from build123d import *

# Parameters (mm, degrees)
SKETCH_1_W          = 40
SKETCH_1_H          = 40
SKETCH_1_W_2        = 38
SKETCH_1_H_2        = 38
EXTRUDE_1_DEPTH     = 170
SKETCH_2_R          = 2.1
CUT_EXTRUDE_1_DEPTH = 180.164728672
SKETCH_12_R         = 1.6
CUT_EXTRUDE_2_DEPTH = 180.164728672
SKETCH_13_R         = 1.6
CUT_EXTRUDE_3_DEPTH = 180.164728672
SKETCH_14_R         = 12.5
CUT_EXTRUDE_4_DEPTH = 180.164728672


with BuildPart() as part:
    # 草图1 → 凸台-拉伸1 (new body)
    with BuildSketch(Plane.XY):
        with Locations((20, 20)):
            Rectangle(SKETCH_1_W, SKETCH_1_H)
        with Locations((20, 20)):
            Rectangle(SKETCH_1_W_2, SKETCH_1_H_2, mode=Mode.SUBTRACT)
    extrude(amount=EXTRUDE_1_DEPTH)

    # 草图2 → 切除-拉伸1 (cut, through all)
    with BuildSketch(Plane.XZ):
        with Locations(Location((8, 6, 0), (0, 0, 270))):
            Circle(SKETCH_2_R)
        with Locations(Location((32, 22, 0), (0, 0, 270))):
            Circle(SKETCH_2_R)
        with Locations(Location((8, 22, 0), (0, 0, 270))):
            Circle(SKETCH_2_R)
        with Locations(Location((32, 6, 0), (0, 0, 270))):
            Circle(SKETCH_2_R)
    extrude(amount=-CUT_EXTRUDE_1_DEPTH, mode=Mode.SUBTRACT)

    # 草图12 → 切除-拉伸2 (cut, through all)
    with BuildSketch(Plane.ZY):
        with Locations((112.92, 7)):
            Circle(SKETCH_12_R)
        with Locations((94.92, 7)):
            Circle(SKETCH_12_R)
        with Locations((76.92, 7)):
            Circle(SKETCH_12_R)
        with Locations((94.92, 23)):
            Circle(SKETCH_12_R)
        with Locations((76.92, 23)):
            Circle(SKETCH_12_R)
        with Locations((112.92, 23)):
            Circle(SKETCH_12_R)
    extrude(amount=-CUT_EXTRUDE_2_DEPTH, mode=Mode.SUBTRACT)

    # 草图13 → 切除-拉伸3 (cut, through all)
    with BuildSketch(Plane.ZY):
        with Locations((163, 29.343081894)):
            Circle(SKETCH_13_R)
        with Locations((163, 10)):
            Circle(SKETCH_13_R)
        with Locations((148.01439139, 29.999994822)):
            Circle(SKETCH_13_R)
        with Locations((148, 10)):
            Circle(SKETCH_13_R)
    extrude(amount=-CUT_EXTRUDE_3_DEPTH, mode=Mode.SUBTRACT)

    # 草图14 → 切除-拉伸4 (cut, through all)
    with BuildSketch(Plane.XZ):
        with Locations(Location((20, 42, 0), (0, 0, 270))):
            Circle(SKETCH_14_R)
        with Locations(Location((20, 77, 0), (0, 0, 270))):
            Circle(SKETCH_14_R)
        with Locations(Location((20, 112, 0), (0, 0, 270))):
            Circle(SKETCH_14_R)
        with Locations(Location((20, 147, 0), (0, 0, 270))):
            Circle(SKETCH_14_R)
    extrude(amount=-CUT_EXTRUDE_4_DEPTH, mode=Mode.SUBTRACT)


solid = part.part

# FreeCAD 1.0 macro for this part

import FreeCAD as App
import Part
import Sketcher
from FreeCAD import Vector


def add_polygon(sketch, points):
    """Adds a closed chain of lines whose ends are joined by coincident constraints."""
    first, n = sketch.GeometryCount, len(points)
    for a, b in zip(points, points[1:] + points[:1]):
        sketch.addGeometry(Part.LineSegment(App.Vector(*a, 0), App.Vector(*b, 0)), False)
    for i in range(n):
        sketch.addConstraint(Sketcher.Constraint("Coincident", first + i, 2, first + (i + 1) % n, 1))

doc = App.newDocument("Part")
body = doc.addObject("PartDesign::Body", "Body")

# Sketch on XY plane
sketch1 = body.newObject("Sketcher::SketchObject", "Sketch")
sketch1.AttachmentSupport = (doc.getObject("XY_Plane"), [""])
sketch1.MapMode = "FlatFace"
add_polygon(sketch1, [(0, 40), (0, 0), (40, 0), (40, 40)])  # lines 0-3
add_polygon(sketch1, [(39, 1), (1, 1), (1, 39), (39, 39)])  # lines 4-7
sketch1.addConstraint(Sketcher.Constraint("Vertical", 0))
sketch1.addConstraint(Sketcher.Constraint("Horizontal", 1))
sketch1.addConstraint(Sketcher.Constraint("Vertical", 2))
sketch1.addConstraint(Sketcher.Constraint("Horizontal", 3))
sketch1.addConstraint(Sketcher.Constraint("Horizontal", 4))
sketch1.addConstraint(Sketcher.Constraint("Vertical", 5))
sketch1.addConstraint(Sketcher.Constraint("Horizontal", 6))
sketch1.addConstraint(Sketcher.Constraint("Vertical", 7))
sketch1.addConstraint(Sketcher.Constraint("Coincident", 0, 2, -1, 1))
sketch1.addConstraint(Sketcher.Constraint("Equal", 3, 0))
sketch1.addConstraint(Sketcher.Constraint("Equal", 6, 5))
sketch1.addConstraint(Sketcher.Constraint("DistanceX", 1, 1, 1, 2, 40.0))
sketch1.addConstraint(Sketcher.Constraint("DistanceX", 4, 2, 4, 1, 38.0))
sketch1.addConstraint(Sketcher.Constraint("DistanceX", -1, 1, 4, 2, 1.0))
sketch1.addConstraint(Sketcher.Constraint("DistanceY", -1, 1, 4, 2, 1.0))
pad1 = body.newObject("PartDesign::Pad", "Pad")
pad1.Profile = sketch1
pad1.Length = 170

# Sketch on XZ plane
sketch2 = body.newObject("Sketcher::SketchObject", "Sketch001")
sketch2.AttachmentSupport = (doc.getObject("XZ_Plane"), [""])
sketch2.MapMode = "FlatFace"
sketch2.addGeometry(Part.Circle(Vector(8, 6, 0), Vector(0, 0, 1), 2.1), False)
sketch2.addGeometry(Part.Circle(Vector(32, 22, 0), Vector(0, 0, 1), 2.1), False)
sketch2.addGeometry(Part.Circle(Vector(8, 22, 0), Vector(0, 0, 1), 2.1), False)
sketch2.addGeometry(Part.Circle(Vector(32, 6, 0), Vector(0, 0, 1), 2.1), False)
sketch2.addConstraint(Sketcher.Constraint("Equal", 0, 1))
sketch2.addConstraint(Sketcher.Constraint("Equal", 1, 2))
sketch2.addConstraint(Sketcher.Constraint("Equal", 2, 3))
sketch2.addConstraint(Sketcher.Constraint("Horizontal", 1, 3, 2, 3))
sketch2.addConstraint(Sketcher.Constraint("Horizontal", 0, 3, 3, 3))
sketch2.addConstraint(Sketcher.Constraint("Vertical", 0, 3, 2, 3))
sketch2.addConstraint(Sketcher.Constraint("Vertical", 1, 3, 3, 3))
sketch2.addConstraint(Sketcher.Constraint("Diameter", 0, 4.2))
sketch2.addConstraint(Sketcher.Constraint("DistanceX", -1, 1, 0, 3, 8.0))
sketch2.addConstraint(Sketcher.Constraint("DistanceY", -1, 1, 0, 3, 6.0))
sketch2.addConstraint(Sketcher.Constraint("DistanceX", -1, 1, 1, 3, 32.0))
sketch2.addConstraint(Sketcher.Constraint("DistanceY", -1, 1, 1, 3, 22.0))
pocket1 = body.newObject("PartDesign::Pocket", "Pocket")
pocket1.Profile = sketch2
pocket1.Type = "ThroughAll"

# Sketch on YZ plane
sketch3 = body.newObject("Sketcher::SketchObject", "Sketch002")
sketch3.AttachmentSupport = (doc.getObject("YZ_Plane"), [""])
sketch3.MapMode = "FlatFace"
sketch3.addGeometry(Part.Circle(Vector(7, 112.9, 0), Vector(0, 0, 1), 1.6), False)
sketch3.addGeometry(Part.Circle(Vector(7, 94.9, 0), Vector(0, 0, 1), 1.6), False)
sketch3.addGeometry(Part.Circle(Vector(7, 76.9, 0), Vector(0, 0, 1), 1.6), False)
sketch3.addGeometry(Part.Circle(Vector(23, 94.9, 0), Vector(0, 0, 1), 1.6), False)
sketch3.addGeometry(Part.Circle(Vector(23, 76.9, 0), Vector(0, 0, 1), 1.6), False)
sketch3.addGeometry(Part.Circle(Vector(23, 112.9, 0), Vector(0, 0, 1), 1.6), False)
sketch3.addConstraint(Sketcher.Constraint("Equal", 0, 1))
sketch3.addConstraint(Sketcher.Constraint("Equal", 1, 2))
sketch3.addConstraint(Sketcher.Constraint("Equal", 2, 3))
sketch3.addConstraint(Sketcher.Constraint("Equal", 3, 4))
sketch3.addConstraint(Sketcher.Constraint("Equal", 4, 5))
sketch3.addConstraint(Sketcher.Constraint("Horizontal", 1, 3, 3, 3))
sketch3.addConstraint(Sketcher.Constraint("Horizontal", 2, 3, 4, 3))
sketch3.addConstraint(Sketcher.Constraint("Horizontal", 0, 3, 5, 3))
sketch3.addConstraint(Sketcher.Constraint("Vertical", 0, 3, 1, 3))
sketch3.addConstraint(Sketcher.Constraint("Vertical", 1, 3, 2, 3))
sketch3.addConstraint(Sketcher.Constraint("Vertical", 3, 3, 4, 3))
sketch3.addConstraint(Sketcher.Constraint("Vertical", 4, 3, 5, 3))
sketch3.addConstraint(Sketcher.Constraint("Diameter", 0, 3.2))
sketch3.addConstraint(Sketcher.Constraint("DistanceX", -1, 1, 0, 3, 7.0))
sketch3.addConstraint(Sketcher.Constraint("DistanceX", -1, 1, 3, 3, 23.0))
sketch3.addConstraint(Sketcher.Constraint("DistanceY", 1, 3, 0, 3, 18.0))
sketch3.addConstraint(Sketcher.Constraint("DistanceY", 2, 3, 1, 3, 18.0))
sketch3.addConstraint(Sketcher.Constraint("DistanceY", -1, 1, 0, 3, 112.92))
pocket2 = body.newObject("PartDesign::Pocket", "Pocket001")
pocket2.Profile = sketch3
pocket2.Type = "ThroughAll"
pocket2.Reversed = True

# Sketch on YZ plane
sketch4 = body.newObject("Sketcher::SketchObject", "Sketch003")
sketch4.AttachmentSupport = (doc.getObject("YZ_Plane"), [""])
sketch4.MapMode = "FlatFace"
sketch4.addGeometry(Part.Circle(Vector(29.3, 163, 0), Vector(0, 0, 1), 1.6), False)
sketch4.addGeometry(Part.Circle(Vector(10, 163, 0), Vector(0, 0, 1), 1.6), False)
sketch4.addGeometry(Part.Circle(Vector(30, 148, 0), Vector(0, 0, 1), 1.6), False)
sketch4.addGeometry(Part.Circle(Vector(10, 148, 0), Vector(0, 0, 1), 1.6), False)
sketch4.addConstraint(Sketcher.Constraint("Equal", 0, 1))
sketch4.addConstraint(Sketcher.Constraint("Equal", 1, 2))
sketch4.addConstraint(Sketcher.Constraint("Equal", 2, 3))
sketch4.addConstraint(Sketcher.Constraint("Horizontal", 0, 3, 1, 3))
sketch4.addConstraint(Sketcher.Constraint("Vertical", 1, 3, 3, 3))
sketch4.addConstraint(Sketcher.Constraint("Diameter", 0, 3.2))
sketch4.addConstraint(Sketcher.Constraint("DistanceY", -1, 1, 0, 3, 163.0))
sketch4.addConstraint(Sketcher.Constraint("DistanceX", -1, 1, 1, 3, 10.0))
sketch4.addConstraint(Sketcher.Constraint("DistanceY", -1, 1, 3, 3, 148.0))
sketch4.addConstraint(Sketcher.Constraint("DistanceX", -1, 1, 0, 3, 29.343082))
sketch4.addConstraint(Sketcher.Constraint("DistanceY", -1, 1, 2, 3, 148.014391))
sketch4.addConstraint(Sketcher.Constraint("DistanceX", -1, 1, 2, 3, 29.999995))
pocket3 = body.newObject("PartDesign::Pocket", "Pocket002")
pocket3.Profile = sketch4
pocket3.Type = "ThroughAll"
pocket3.Reversed = True

# Sketch on XZ plane
sketch5 = body.newObject("Sketcher::SketchObject", "Sketch004")
sketch5.AttachmentSupport = (doc.getObject("XZ_Plane"), [""])
sketch5.MapMode = "FlatFace"
sketch5.addGeometry(Part.Circle(Vector(20, 42, 0), Vector(0, 0, 1), 12), False)
sketch5.addGeometry(Part.Circle(Vector(20, 77, 0), Vector(0, 0, 1), 12), False)
sketch5.addGeometry(Part.Circle(Vector(20, 112, 0), Vector(0, 0, 1), 12), False)
sketch5.addGeometry(Part.Circle(Vector(20, 147, 0), Vector(0, 0, 1), 12), False)
sketch5.addConstraint(Sketcher.Constraint("Equal", 0, 1))
sketch5.addConstraint(Sketcher.Constraint("Equal", 1, 2))
sketch5.addConstraint(Sketcher.Constraint("Equal", 2, 3))
sketch5.addConstraint(Sketcher.Constraint("Vertical", 0, 3, 1, 3))
sketch5.addConstraint(Sketcher.Constraint("Vertical", 1, 3, 2, 3))
sketch5.addConstraint(Sketcher.Constraint("Vertical", 2, 3, 3, 3))
sketch5.addConstraint(Sketcher.Constraint("Diameter", 0, 25.0))
sketch5.addConstraint(Sketcher.Constraint("DistanceX", -1, 1, 0, 3, 20.0))
sketch5.addConstraint(Sketcher.Constraint("DistanceY", -1, 1, 0, 3, 42.0))
sketch5.addConstraint(Sketcher.Constraint("DistanceY", -1, 1, 1, 3, 77.0))
sketch5.addConstraint(Sketcher.Constraint("DistanceY", -1, 1, 2, 3, 112.0))
sketch5.addConstraint(Sketcher.Constraint("DistanceY", -1, 1, 3, 3, 147.0))
pocket4 = body.newObject("PartDesign::Pocket", "Pocket003")
pocket4.Profile = sketch5
pocket4.Type = "ThroughAll"

doc.recompute()
